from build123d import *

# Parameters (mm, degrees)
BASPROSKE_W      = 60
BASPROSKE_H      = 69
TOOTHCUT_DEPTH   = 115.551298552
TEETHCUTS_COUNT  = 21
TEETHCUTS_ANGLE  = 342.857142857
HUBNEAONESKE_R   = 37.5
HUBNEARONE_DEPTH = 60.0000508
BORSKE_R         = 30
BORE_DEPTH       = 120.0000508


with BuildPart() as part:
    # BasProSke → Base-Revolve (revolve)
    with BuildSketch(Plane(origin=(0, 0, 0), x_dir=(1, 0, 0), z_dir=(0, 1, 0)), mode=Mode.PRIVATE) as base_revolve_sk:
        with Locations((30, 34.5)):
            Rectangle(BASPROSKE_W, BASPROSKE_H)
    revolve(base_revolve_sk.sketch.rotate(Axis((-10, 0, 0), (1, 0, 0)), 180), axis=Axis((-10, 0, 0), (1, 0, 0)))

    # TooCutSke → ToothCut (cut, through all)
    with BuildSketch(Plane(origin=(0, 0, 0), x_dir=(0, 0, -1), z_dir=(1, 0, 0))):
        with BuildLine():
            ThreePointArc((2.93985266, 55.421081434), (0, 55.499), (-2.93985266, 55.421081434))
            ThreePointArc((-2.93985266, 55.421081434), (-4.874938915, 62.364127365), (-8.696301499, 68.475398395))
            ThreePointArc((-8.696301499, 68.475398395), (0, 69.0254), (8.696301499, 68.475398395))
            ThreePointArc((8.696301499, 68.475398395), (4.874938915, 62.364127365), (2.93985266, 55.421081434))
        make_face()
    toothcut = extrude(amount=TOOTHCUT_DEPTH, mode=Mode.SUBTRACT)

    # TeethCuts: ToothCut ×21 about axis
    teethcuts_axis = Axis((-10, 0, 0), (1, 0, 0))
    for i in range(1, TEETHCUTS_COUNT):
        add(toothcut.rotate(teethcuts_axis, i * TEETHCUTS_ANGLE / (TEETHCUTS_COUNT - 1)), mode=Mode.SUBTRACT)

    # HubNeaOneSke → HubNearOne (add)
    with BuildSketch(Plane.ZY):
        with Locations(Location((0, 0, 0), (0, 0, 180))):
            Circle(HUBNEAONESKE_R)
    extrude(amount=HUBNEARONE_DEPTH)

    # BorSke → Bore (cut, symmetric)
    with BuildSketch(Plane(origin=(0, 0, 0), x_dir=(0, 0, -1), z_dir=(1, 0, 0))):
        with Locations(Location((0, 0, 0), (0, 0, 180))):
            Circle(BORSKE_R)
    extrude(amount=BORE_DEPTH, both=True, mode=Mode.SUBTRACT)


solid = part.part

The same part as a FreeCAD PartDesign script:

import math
import FreeCAD as App
import Part
import Sketcher

V = App.Vector

doc = App.newDocument("Part")
body = doc.addObject("PartDesign::Body", "Body")

sketch1 = body.newObject("Sketcher::SketchObject", "Sketch")
sketch1.AttachmentSupport = (doc.getObject("XZ_Plane"), [""])
sketch1.MapMode = "FlatFace"
sketch1.addGeometry([
    Part.LineSegment(V(0, -69, 0), V(0, 0, 0)),
    Part.LineSegment(V(0, 0, 0), V(60, 0, 0)),
    Part.LineSegment(V(60, 0, 0), V(60, -69, 0)),
    Part.LineSegment(V(60, -69, 0), V(0, -69, 0)),
], False)
sketch1.addConstraint([
    Sketcher.Constraint("Coincident", 0, 2, 1, 1),
    Sketcher.Constraint("Coincident", 1, 2, 2, 1),
    Sketcher.Constraint("Coincident", 2, 2, 3, 1),
    Sketcher.Constraint("Coincident", 3, 2, 0, 1),
    Sketcher.Constraint("Vertical", 0),
    Sketcher.Constraint("Horizontal", 1),
    Sketcher.Constraint("Vertical", 2),
    Sketcher.Constraint("Horizontal", 3),
    Sketcher.Constraint("Coincident", 0, 2, -1, 1),
    Sketcher.Constraint("DistanceX", 1, 1, 1, 2, 60.0),
    Sketcher.Constraint("DistanceY", 0, 1, 0, 2, 69.0),
])
revolution = body.newObject("PartDesign::Revolution", "Revolution")
revolution.Profile = sketch1
revolution.ReferenceAxis = (sketch1, ["H_Axis"])
revolution.Angle = 360

sketch2 = body.newObject("Sketcher::SketchObject", "Sketch001")
sketch2.AttachmentSupport = (doc.getObject("YZ_Plane"), [""])
sketch2.MapMode = "FlatFace"
sketch2.addGeometry([
    Part.ArcOfCircle(Part.Circle(V(0, 0, 0), V(0, 0, 1), 55.499), math.radians(-3.036452), math.radians(3.036452)),
    Part.ArcOfCircle(Part.Circle(V(52.196547, -27.932699, 0), V(0, 0, 1), 25.2), math.radians(49.760345), math.radians(82.648407)),
    Part.ArcOfCircle(Part.Circle(V(0, 0, 0), V(0, 0, 1), 69.0254), math.radians(-7.237756), math.radians(7.237756)),
    Part.ArcOfCircle(Part.Circle(V(52.196547, 27.932699, 0), V(0, 0, 1), 25.2), math.radians(-82.648407), math.radians(-49.760345)),
], False)
sketch2.addConstraint([
    Sketcher.Constraint("Coincident", 0, 1, 1, 2),
    Sketcher.Constraint("Coincident", 1, 1, 2, 1),
    Sketcher.Constraint("Coincident", 2, 2, 3, 2),
    Sketcher.Constraint("Coincident", 3, 1, 0, 2),
    Sketcher.Constraint("Coincident", 0, 3, -1, 1),
    Sketcher.Constraint("Coincident", 2, 3, -1, 1),
    Sketcher.Constraint("Equal", 1, 3),
    Sketcher.Constraint("Symmetric", 1, 3, 3, 3, -1),
    Sketcher.Constraint("Radius", 1, 25.2),
    Sketcher.Constraint("Radius", 0, 55.499),
    Sketcher.Constraint("Radius", 2, 69.0254),
    Sketcher.Constraint("DistanceY", 1, 1, 3, 3, 36.629001),
    Sketcher.Constraint("DistanceY", 1, 3, -1, 1, 27.932699),
])
pocket1 = body.newObject("PartDesign::Pocket", "Pocket")
pocket1.Profile = sketch2
pocket1.Type = "ThroughAll"
pocket1.Reversed = True
doc.recompute()

polarpattern = body.newObject("PartDesign::PolarPattern", "PolarPattern")
polarpattern.Originals = [pocket1]
polarpattern.Axis = (doc.getObject("X_Axis"), [""])
polarpattern.Angle = 360
polarpattern.Occurrences = 21
body.Tip = polarpattern

sketch3 = body.newObject("Sketcher::SketchObject", "Sketch002")
sketch3.AttachmentSupport = (doc.getObject("YZ_Plane"), [""])
sketch3.MapMode = "FlatFace"
sketch3.addGeometry(Part.Circle(V(0, 0, 0), V(0, 0, 1), 37.5), False)
sketch3.addConstraint([
    Sketcher.Constraint("Coincident", 0, 3, -1, 1),
    Sketcher.Constraint("Diameter", 0, 75.0),
])
pad1 = body.newObject("PartDesign::Pad", "Pad")
pad1.Profile = sketch3
pad1.Length = 60.000051
pad1.Reversed = True

sketch4 = body.newObject("Sketcher::SketchObject", "Sketch003")
sketch4.AttachmentSupport = (doc.getObject("YZ_Plane"), [""])
sketch4.MapMode = "FlatFace"
sketch4.addGeometry(Part.Circle(V(0, 0, 0), V(0, 0, 1), 30), False)
sketch4.addConstraint([
    Sketcher.Constraint("Coincident", 0, 3, -1, 1),
    Sketcher.Constraint("Diameter", 0, 60.0),
])
pocket2 = body.newObject("PartDesign::Pocket", "Pocket001")
pocket2.Profile = sketch4
pocket2.Length = 240.000102
pocket2.Midplane = True

doc.recompute()
